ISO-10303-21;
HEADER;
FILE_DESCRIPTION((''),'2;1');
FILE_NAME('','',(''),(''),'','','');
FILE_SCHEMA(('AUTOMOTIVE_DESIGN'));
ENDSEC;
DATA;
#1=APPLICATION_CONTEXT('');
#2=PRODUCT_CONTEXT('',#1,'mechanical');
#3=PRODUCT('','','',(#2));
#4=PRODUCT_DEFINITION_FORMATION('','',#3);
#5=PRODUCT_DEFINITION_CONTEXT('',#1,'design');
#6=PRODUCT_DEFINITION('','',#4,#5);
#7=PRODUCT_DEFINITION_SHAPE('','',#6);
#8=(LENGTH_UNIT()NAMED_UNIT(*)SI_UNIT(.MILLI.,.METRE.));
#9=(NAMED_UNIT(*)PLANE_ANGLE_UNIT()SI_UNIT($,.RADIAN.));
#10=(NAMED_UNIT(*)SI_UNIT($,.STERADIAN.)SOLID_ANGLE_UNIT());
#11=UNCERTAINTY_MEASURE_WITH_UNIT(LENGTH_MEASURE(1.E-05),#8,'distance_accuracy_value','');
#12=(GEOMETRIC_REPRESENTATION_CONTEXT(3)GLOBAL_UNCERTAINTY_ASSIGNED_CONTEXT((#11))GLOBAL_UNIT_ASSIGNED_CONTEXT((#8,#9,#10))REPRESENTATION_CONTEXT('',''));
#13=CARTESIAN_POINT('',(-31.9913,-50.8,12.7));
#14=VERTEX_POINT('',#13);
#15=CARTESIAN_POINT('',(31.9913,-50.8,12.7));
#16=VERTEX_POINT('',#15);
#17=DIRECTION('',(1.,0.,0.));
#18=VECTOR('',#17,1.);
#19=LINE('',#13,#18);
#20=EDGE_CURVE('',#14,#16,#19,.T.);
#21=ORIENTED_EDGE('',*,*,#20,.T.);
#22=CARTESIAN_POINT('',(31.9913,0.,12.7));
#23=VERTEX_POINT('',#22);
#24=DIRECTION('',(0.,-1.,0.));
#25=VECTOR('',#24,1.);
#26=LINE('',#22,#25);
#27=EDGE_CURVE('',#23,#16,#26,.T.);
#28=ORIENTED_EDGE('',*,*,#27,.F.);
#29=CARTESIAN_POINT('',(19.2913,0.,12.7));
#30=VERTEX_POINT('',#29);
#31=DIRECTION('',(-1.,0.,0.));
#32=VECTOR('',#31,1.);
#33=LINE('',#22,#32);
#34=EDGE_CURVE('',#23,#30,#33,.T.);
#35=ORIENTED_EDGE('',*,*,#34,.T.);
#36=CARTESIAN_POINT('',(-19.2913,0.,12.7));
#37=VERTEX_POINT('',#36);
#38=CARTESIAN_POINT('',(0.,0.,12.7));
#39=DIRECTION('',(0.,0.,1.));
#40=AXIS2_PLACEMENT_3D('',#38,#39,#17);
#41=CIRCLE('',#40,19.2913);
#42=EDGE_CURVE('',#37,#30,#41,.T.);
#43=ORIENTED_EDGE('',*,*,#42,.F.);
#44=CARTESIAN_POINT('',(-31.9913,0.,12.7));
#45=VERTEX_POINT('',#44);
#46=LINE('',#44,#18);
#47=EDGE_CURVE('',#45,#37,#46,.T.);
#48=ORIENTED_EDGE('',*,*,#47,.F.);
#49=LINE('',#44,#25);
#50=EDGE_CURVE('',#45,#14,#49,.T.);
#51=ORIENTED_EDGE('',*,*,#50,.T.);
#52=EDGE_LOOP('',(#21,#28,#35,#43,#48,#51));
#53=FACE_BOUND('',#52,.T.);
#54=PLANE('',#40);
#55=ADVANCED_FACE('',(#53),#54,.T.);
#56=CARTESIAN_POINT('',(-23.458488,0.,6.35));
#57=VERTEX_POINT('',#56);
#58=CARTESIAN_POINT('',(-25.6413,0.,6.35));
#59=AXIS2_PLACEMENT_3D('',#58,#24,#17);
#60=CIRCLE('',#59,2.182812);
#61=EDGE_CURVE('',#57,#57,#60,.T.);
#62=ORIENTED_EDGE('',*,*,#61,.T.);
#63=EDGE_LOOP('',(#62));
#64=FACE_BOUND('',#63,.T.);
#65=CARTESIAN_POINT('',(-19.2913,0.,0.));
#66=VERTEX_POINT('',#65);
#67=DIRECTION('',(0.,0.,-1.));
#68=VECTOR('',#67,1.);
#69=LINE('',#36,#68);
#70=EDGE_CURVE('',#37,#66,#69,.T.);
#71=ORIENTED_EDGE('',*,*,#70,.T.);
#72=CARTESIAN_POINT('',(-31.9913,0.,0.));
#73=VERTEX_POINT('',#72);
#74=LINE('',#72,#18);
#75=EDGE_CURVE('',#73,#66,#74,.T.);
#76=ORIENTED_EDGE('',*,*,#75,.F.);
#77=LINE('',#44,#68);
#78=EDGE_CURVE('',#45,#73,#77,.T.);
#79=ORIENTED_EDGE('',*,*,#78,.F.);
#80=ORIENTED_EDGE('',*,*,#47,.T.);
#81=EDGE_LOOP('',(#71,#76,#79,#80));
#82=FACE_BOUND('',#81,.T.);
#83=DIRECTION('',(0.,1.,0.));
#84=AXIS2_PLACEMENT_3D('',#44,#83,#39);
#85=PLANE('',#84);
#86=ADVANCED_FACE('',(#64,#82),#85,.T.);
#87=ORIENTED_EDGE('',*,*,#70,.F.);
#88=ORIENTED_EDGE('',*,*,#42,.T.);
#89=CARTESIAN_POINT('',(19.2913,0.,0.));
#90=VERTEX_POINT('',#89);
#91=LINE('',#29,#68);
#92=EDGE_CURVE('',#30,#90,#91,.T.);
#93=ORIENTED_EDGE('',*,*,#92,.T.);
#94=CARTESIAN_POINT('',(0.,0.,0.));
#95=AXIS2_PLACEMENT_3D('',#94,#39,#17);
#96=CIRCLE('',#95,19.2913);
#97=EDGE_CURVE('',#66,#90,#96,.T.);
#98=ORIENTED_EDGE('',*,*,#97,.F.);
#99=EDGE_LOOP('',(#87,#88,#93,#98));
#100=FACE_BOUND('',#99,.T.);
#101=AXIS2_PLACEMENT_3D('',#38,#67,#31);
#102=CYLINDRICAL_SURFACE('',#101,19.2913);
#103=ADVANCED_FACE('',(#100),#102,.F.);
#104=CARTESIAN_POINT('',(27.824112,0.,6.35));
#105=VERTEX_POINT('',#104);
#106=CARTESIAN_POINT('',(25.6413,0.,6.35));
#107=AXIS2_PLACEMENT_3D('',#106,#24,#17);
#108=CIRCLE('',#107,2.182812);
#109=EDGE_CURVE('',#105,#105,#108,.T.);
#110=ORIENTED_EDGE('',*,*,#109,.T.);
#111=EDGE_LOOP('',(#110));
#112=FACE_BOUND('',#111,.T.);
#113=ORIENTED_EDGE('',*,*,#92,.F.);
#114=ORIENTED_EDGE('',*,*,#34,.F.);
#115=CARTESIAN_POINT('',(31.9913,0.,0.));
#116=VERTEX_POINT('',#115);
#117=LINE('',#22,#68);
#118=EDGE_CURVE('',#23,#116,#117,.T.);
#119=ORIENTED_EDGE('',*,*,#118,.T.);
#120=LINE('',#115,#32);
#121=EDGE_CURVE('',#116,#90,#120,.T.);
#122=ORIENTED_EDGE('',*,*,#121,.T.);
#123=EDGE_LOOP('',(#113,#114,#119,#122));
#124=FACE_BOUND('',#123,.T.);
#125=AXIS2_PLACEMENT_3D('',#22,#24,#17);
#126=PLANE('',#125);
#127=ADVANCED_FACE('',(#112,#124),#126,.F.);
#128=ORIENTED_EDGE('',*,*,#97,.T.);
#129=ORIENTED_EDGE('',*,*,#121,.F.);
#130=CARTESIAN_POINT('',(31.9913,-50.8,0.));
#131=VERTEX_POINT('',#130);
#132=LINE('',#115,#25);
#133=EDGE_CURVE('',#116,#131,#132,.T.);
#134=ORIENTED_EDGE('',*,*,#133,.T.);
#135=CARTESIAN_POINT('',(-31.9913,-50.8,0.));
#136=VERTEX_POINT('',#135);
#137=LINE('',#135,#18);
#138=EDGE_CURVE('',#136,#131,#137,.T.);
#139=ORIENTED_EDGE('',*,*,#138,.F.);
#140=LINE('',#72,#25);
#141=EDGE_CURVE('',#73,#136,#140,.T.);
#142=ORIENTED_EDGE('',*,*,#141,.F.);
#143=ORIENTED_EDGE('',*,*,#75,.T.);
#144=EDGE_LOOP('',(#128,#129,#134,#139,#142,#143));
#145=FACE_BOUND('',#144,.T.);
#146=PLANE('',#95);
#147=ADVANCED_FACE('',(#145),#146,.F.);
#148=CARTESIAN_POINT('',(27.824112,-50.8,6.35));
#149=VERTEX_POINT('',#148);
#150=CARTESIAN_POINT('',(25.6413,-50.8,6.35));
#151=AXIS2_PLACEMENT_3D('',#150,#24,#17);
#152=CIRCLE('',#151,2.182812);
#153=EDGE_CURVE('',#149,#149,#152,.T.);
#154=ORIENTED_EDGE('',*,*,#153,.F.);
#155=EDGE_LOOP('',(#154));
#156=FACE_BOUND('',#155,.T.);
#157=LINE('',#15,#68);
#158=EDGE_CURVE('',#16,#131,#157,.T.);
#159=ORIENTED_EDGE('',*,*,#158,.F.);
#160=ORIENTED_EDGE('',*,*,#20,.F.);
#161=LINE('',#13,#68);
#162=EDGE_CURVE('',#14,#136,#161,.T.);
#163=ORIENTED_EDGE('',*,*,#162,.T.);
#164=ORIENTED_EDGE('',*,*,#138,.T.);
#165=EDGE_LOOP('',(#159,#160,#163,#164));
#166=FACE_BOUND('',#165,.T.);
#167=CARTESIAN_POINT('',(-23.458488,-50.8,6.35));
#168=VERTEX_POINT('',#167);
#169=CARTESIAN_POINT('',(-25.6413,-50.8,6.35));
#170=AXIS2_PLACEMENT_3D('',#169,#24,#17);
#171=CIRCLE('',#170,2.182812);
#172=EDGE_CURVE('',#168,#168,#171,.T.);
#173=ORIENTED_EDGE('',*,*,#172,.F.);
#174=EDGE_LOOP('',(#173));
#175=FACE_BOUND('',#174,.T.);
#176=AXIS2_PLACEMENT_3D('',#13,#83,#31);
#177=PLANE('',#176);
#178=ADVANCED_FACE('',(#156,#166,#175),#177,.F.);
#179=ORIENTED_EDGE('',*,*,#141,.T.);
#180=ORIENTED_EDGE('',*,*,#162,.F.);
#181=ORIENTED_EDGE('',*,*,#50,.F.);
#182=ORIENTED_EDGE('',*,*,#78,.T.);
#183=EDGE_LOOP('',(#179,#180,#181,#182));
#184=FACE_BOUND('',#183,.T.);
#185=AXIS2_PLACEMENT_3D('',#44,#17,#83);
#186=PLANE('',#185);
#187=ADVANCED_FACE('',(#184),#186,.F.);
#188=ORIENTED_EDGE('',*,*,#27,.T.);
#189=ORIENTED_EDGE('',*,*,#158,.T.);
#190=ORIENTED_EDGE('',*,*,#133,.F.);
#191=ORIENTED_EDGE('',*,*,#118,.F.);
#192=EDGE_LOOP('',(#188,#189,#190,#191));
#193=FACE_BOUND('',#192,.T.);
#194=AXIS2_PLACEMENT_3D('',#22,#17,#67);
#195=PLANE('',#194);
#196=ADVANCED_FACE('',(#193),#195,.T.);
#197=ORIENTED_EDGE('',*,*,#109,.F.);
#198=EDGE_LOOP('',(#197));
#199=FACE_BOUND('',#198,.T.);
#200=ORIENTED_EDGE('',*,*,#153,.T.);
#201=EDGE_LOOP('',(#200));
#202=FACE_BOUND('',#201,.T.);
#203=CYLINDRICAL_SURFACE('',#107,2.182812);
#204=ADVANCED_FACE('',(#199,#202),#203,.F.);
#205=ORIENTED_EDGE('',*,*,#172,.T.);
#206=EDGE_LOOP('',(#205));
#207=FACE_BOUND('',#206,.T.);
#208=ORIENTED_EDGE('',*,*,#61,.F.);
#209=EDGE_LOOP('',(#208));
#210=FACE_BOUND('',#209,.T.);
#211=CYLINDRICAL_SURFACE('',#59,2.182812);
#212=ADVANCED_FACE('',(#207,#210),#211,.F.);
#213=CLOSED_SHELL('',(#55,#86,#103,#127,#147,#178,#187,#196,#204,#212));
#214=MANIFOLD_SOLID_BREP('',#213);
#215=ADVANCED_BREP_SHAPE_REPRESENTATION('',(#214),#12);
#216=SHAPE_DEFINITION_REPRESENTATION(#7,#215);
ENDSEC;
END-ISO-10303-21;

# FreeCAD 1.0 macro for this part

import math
import FreeCAD as App
import Part
import Sketcher

V = App.Vector
Q = App.Units.Quantity

doc = App.newDocument("Part")
params = doc.addObject("Spreadsheet::Sheet", "Params")
for row, (alias, value) in enumerate([
    ("sketch1_height", "2 in"),
    ("sketch1_width", "0.5 in"),
    ("pad1_length", "0.5 in"),
    ("sketch2_diameter", "0.171875 in"),
], start=1):
    params.set(f"A{row}", alias)
    params.set(f"B{row}", "=" + value)
    params.setAlias(f"B{row}", alias)

body = doc.addObject("PartDesign::Body", "Body")

# Sketch on XY plane
sketch1 = doc.addObject("Sketcher::SketchObject", "Sketch")
body.addObject(sketch1)
sketch1.AttachmentSupport = (doc.XY_Plane, [""])
sketch1.MapMode = "FlatFace"
sketch1.addGeometry([
    Part.LineSegment(V(-19, 0, 0), V(-32, 0, 0)),  # 0
    Part.LineSegment(V(-32, 0, 0), V(-32, -51, 0)),  # 1
    Part.LineSegment(V(-32, -51, 0), V(32, -51, 0)),  # 2
    Part.LineSegment(V(32, -51, 0), V(32, 0, 0)),  # 3
    Part.LineSegment(V(32, 0, 0), V(19, 0, 0)),  # 4
    Part.ArcOfCircle(Part.Circle(V(0, 0, 0), V(0, 0, 1), 19), math.radians(180), math.radians(360)),  # 5
], False)
sketch1.addConstraint([
    Sketcher.Constraint("Coincident", 0, 2, 1, 1),
    Sketcher.Constraint("Coincident", 1, 2, 2, 1),
    Sketcher.Constraint("Coincident", 2, 2, 3, 1),
    Sketcher.Constraint("Coincident", 3, 2, 4, 1),
    Sketcher.Constraint("Coincident", 4, 2, 5, 2),
    Sketcher.Constraint("Coincident", 5, 1, 0, 1),
    Sketcher.Constraint("Horizontal", 0),
    Sketcher.Constraint("Vertical", 1),
    Sketcher.Constraint("Horizontal", 2),
    Sketcher.Constraint("Vertical", 3),
    Sketcher.Constraint("Horizontal", 4),
    Sketcher.Constraint("Coincident", 5, 3, -1, 1),
    Sketcher.Constraint("Symmetric", 0, 2, 3, 2, -1, 1),
    Sketcher.Constraint("PointOnObject", 0, 2, -1),
    Sketcher.Constraint("DistanceY", 1, 2, 1, 1, Q("2 in")),
    Sketcher.Constraint("DistanceX", 0, 2, 0, 1, Q("0.5 in")),
    Sketcher.Constraint("Radius", 5, Q("0.7595 in")),
])
sketch1.setExpression("Constraints[14]", "Params.sketch1_height")
sketch1.setExpression("Constraints[15]", "Params.sketch1_width")
pad1 = doc.addObject("PartDesign::Pad", "Pad")
body.addObject(pad1)
pad1.Profile = sketch1
pad1.setExpression("Length", "Params.pad1_length")

# Sketch on XZ plane
sketch2 = doc.addObject("Sketcher::SketchObject", "Sketch001")
body.addObject(sketch2)
sketch2.AttachmentSupport = (doc.XZ_Plane, [""])
sketch2.MapMode = "FlatFace"
sketch2.AttachmentOffset = App.Placement(V(0, 0, 2 * 25.4), App.Rotation())
sketch2.addGeometry([
    Part.Circle(V(-25.6, 6.3, 0), V(0, 0, 1), 2.2),
    Part.Circle(V(25.6, 6.3, 0), V(0, 0, 1), 2.2),
], False)
sketch2.addConstraint([
    Sketcher.Constraint("Equal", 0, 1),
    Sketcher.Constraint("Symmetric", 0, 3, 1, 3, -2),
    Sketcher.Constraint("Diameter", 0, Q("0.171875 in")),
    Sketcher.Constraint("DistanceY", -1, 1, 0, 3, Q("0.25 in")),
    Sketcher.Constraint("DistanceX", 0, 3, 1, 3, Q("2.019 in")),
])
sketch2.setExpression("Constraints[2]", "Params.sketch2_diameter")
pocket1 = doc.addObject("PartDesign::Pocket", "Pocket")
body.addObject(pocket1)
pocket1.Profile = sketch2
pocket1.Type = "ThroughAll"

doc.recompute()
